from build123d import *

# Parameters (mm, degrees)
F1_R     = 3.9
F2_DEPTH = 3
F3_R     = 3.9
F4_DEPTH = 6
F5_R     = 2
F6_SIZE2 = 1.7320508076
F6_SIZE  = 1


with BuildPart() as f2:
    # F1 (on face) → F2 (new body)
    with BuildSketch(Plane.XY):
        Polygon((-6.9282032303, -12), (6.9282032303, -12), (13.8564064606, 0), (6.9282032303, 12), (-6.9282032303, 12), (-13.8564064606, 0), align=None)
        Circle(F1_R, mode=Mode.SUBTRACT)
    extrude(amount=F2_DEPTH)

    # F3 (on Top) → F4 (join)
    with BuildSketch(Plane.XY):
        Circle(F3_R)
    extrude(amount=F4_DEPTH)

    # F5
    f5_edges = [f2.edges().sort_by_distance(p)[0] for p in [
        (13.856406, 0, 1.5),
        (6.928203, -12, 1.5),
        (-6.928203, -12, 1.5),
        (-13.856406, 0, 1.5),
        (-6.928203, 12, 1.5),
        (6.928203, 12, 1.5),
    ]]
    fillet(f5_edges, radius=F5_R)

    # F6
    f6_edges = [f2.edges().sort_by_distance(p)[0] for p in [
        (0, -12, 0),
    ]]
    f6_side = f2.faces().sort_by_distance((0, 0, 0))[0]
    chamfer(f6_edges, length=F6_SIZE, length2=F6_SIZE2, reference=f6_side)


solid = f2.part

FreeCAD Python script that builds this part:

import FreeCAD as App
import Part
import Sketcher
from FreeCAD import Vector
Q = App.Units.Quantity


def edges_at(feature, points):
    """Names of the edges that pass closest to the given points."""
    edges = feature.Shape.Edges
    near = lambda p: min(range(len(edges)), key=lambda i: edges[i].distToShape(Part.Vertex(*p))[0])
    return sorted({f"Edge{near(p) + 1}" for p in points})

doc = App.newDocument("Part")
body = doc.addObject("PartDesign::Body", "Body")

# Sketch on XY plane
sketch1 = body.newObject("Sketcher::SketchObject", "Sketch")
sketch1.AttachmentSupport = (doc.getObject("XY_Plane"), [""])
sketch1.MapMode = "FlatFace"
sketch1.addGeometry([
    Part.LineSegment(Vector(-6.928203, -12, 0), Vector(6.928203, -12, 0)),  # 0
    Part.LineSegment(Vector(6.928203, -12, 0), Vector(13.856406, 0, 0)),  # 1
    Part.LineSegment(Vector(13.856406, 0, 0), Vector(6.928203, 12, 0)),  # 2
    Part.LineSegment(Vector(6.928203, 12, 0), Vector(-6.928203, 12, 0)),  # 3
    Part.LineSegment(Vector(-6.928203, 12, 0), Vector(-13.856406, 0, 0)),  # 4
    Part.LineSegment(Vector(-13.856406, 0, 0), Vector(-6.928203, -12, 0)),  # 5
    Part.Circle(Vector(0, 0, 0), Vector(0, 0, 1), 3.9),  # 6
], False)
sketch1.addConstraint([
    Sketcher.Constraint("Coincident", 0, 2, 1, 1),
    Sketcher.Constraint("Coincident", 1, 2, 2, 1),
    Sketcher.Constraint("Coincident", 2, 2, 3, 1),
    Sketcher.Constraint("Coincident", 3, 2, 4, 1),
    Sketcher.Constraint("Coincident", 4, 2, 5, 1),
    Sketcher.Constraint("Coincident", 5, 2, 0, 1),
    Sketcher.Constraint("Horizontal", 0),
    Sketcher.Constraint("Horizontal", 3),
    Sketcher.Constraint("Coincident", 6, 3, -1, 1),
    Sketcher.Constraint("Symmetric", 0, 2, 3, 2, -1, 1),
    Sketcher.Constraint("Symmetric", 1, 2, 4, 2, -1, 1),
    Sketcher.Constraint("PointOnObject", 1, 2, -1),
    Sketcher.Constraint("Parallel", 2, 5),
    Sketcher.Constraint("Vertical", 0, 2, 2, 2),
    Sketcher.Constraint("Diameter", 6, Q("7.8 mm")),
    Sketcher.Constraint("Angle", 1, Q("60 deg")),
    Sketcher.Constraint("DistanceY", 0, 2, -1, 1, Q("12 mm")),
    Sketcher.Constraint("DistanceX", 0, 1, 0, 2, Q("13.856406 mm")),
])
pad1 = body.newObject("PartDesign::Pad", "Pad")
pad1.Profile = sketch1
pad1.Length = 3

# Sketch on XY plane
sketch2 = body.newObject("Sketcher::SketchObject", "Sketch001")
sketch2.AttachmentSupport = (doc.getObject("XY_Plane"), [""])
sketch2.MapMode = "FlatFace"
sketch2.addGeometry(Part.Circle(Vector(0, 0, 0), Vector(0, 0, 1), 3.9), False)
sketch2.addConstraint([
    Sketcher.Constraint("Coincident", 0, 3, -1, 1),
    Sketcher.Constraint("Diameter", 0, Q("7.8 mm")),
])
pad2 = body.newObject("PartDesign::Pad", "Pad001")
pad2.Profile = sketch2
pad2.Length = 6
doc.recompute()

fillet = body.newObject("PartDesign::Fillet", "Fillet")
fillet.Base = (pad2, edges_at(pad2, [
    (13.856, 0, 1.5),
    (6.928, -12, 1.5),
    (-6.928, -12, 1.5),
    (-13.856, 0, 1.5),
    (-6.928, 12, 1.5),
    (6.928, 12, 1.5),
]))
fillet.Radius = 2
doc.recompute()

chamfer = body.newObject("PartDesign::Chamfer", "Chamfer")
chamfer.Base = (fillet, edges_at(fillet, [(0, -12, 0)]))
chamfer.ChamferType = "Two distances"
chamfer.Size = 1
chamfer.Size2 = 1.732051
chamfer.FlipDirection = True

doc.recompute()
